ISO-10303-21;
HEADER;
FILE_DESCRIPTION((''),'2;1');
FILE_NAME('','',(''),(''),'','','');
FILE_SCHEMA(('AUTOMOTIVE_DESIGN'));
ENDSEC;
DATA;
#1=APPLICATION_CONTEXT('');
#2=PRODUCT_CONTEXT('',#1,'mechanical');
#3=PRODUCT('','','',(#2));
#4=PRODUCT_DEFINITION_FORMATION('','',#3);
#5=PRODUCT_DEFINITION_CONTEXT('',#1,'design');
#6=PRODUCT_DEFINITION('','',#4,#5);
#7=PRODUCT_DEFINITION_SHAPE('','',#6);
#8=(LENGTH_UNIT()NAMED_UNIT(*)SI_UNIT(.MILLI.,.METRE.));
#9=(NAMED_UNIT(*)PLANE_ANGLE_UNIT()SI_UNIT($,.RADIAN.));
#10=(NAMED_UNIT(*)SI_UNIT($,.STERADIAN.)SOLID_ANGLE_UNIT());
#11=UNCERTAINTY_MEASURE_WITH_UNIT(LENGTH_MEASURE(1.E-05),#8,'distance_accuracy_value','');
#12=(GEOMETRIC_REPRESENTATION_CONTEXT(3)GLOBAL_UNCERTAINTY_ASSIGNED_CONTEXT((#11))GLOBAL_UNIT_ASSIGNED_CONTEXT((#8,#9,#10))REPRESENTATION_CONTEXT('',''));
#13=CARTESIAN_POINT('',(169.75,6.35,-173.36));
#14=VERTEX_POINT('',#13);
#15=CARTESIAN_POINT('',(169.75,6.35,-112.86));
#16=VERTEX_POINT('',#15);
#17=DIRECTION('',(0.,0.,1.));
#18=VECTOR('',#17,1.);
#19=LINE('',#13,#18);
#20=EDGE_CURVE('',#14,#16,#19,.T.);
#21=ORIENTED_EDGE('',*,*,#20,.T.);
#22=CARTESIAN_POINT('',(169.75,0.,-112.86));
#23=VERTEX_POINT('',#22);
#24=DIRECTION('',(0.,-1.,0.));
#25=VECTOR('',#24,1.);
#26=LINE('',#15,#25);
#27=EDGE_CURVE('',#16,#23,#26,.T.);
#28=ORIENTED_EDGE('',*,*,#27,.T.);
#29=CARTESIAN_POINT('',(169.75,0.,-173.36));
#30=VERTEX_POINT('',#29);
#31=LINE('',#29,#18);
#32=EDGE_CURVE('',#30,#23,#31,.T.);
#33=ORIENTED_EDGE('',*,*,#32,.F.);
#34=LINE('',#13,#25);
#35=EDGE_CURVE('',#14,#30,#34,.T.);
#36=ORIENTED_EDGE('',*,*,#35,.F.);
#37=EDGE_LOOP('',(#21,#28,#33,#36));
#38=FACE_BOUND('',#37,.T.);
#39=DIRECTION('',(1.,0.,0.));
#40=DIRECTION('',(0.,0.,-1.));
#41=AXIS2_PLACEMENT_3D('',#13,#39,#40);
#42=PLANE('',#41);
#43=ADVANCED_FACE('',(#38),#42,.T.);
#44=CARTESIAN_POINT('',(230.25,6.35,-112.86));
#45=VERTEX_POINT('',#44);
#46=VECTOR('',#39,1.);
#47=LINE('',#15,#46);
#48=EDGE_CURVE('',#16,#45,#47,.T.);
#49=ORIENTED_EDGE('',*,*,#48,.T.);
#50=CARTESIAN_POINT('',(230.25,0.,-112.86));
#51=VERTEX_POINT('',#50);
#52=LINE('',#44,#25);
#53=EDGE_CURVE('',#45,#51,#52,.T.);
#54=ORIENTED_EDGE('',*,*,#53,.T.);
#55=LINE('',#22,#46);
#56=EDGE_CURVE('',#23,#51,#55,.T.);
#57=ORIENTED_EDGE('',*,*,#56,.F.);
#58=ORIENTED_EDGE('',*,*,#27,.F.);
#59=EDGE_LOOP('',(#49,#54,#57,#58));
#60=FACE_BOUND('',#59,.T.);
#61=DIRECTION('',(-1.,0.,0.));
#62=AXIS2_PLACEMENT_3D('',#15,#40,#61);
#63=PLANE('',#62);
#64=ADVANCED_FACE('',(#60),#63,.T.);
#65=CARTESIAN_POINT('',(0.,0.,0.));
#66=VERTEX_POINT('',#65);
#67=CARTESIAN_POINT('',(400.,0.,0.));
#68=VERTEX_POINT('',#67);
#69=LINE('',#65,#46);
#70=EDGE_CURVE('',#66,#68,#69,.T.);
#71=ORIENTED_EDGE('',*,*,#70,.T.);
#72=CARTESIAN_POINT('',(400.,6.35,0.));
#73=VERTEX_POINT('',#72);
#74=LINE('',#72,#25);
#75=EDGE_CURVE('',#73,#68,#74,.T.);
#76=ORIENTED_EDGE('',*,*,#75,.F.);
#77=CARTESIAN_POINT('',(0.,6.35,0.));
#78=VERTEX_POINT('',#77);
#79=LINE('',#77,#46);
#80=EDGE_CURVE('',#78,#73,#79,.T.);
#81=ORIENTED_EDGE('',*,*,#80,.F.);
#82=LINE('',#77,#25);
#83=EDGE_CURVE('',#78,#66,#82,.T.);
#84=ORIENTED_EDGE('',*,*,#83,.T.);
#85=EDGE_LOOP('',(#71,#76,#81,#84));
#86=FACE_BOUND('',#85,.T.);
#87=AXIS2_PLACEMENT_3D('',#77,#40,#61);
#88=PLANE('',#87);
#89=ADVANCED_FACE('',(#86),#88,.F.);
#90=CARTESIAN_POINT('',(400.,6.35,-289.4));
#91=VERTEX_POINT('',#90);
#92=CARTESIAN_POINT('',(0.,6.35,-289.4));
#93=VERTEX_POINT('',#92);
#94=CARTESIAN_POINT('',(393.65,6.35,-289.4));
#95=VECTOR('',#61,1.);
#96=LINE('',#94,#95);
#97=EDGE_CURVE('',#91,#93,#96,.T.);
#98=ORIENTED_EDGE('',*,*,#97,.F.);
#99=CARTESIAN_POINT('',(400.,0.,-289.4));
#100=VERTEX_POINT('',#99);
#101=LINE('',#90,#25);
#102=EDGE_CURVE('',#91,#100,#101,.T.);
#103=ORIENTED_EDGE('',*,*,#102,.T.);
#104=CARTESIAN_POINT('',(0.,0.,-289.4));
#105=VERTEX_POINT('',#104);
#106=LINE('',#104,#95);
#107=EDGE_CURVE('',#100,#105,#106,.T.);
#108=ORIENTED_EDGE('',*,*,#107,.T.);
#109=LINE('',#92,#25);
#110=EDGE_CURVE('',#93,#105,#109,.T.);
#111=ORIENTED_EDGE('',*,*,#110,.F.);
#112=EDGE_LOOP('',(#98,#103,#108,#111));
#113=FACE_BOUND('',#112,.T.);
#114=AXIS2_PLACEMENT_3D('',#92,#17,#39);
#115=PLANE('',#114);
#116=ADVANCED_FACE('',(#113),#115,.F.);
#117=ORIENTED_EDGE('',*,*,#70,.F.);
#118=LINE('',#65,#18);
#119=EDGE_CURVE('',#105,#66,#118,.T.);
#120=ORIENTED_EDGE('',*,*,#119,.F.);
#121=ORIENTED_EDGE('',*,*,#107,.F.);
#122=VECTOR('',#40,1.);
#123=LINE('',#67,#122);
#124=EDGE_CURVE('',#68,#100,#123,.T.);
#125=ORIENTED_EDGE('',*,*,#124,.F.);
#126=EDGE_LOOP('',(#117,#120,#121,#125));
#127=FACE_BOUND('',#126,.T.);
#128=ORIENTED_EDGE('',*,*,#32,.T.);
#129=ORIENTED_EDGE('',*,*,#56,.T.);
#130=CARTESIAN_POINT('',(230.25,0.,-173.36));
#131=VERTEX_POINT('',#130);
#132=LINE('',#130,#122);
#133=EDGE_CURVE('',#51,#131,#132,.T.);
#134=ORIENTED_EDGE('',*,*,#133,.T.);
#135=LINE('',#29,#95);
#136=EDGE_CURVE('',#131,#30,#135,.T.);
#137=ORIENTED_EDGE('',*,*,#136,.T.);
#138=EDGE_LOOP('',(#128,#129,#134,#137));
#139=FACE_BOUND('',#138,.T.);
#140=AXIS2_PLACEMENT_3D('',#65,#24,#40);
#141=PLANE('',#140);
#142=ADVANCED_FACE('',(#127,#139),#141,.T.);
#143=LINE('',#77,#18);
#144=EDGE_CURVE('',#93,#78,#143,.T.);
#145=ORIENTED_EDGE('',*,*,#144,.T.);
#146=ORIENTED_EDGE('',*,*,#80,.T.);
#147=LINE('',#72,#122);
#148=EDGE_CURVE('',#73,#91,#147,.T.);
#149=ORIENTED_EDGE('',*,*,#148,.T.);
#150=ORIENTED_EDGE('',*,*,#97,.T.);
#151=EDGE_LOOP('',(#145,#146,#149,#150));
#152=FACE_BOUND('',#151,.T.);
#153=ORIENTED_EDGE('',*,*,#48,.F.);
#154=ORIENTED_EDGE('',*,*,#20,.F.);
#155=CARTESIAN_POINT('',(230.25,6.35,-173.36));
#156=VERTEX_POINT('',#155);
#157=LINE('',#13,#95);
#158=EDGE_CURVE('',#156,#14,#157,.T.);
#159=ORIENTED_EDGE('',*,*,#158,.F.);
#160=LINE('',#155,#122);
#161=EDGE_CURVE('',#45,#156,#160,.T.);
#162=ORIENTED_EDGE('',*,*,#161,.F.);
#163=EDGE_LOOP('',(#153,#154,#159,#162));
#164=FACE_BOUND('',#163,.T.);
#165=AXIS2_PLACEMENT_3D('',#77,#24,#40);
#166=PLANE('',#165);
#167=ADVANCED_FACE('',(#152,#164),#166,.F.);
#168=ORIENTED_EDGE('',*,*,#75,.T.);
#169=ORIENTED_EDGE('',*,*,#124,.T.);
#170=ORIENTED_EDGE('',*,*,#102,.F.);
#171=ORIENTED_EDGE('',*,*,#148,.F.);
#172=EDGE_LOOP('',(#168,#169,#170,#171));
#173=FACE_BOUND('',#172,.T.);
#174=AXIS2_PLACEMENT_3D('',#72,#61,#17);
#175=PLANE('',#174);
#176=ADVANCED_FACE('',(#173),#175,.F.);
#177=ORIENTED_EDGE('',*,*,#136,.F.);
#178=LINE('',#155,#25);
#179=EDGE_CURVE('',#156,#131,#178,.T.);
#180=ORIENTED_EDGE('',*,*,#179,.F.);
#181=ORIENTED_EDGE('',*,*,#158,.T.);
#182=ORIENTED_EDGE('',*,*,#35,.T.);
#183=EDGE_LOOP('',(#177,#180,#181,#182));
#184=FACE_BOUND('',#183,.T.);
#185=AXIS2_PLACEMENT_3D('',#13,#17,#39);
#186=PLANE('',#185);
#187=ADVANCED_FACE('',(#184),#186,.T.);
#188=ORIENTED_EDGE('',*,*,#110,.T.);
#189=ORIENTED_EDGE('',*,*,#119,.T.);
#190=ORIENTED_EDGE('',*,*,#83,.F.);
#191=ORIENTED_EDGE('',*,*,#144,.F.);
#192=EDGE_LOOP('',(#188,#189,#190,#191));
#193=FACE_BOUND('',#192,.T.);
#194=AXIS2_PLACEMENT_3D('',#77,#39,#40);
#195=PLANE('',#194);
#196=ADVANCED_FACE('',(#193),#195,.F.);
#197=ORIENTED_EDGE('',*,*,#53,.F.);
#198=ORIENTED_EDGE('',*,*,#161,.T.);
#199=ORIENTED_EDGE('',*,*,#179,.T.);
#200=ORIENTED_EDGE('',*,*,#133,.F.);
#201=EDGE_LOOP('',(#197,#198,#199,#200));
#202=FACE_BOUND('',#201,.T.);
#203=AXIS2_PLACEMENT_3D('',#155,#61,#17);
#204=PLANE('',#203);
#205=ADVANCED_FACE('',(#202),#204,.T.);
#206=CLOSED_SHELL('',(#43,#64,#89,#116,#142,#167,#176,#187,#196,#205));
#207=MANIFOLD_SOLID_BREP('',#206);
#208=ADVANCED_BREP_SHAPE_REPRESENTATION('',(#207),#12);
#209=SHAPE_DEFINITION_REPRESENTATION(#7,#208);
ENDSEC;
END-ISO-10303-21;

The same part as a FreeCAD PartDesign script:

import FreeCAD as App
import Part
import Sketcher

V = App.Vector


def add_polygon(sketch, points):
    """Adds a closed chain of lines whose ends are joined by coincident constraints."""
    first, n = sketch.GeometryCount, len(points)
    for a, b in zip(points, points[1:] + points[:1]):
        sketch.addGeometry(Part.LineSegment(App.Vector(*a, 0), App.Vector(*b, 0)), False)
    for i in range(n):
        sketch.addConstraint(Sketcher.Constraint("Coincident", first + i, 2, first + (i + 1) % n, 1))

doc = App.newDocument("Part")
params = doc.addObject("Spreadsheet::Sheet", "Params")
for row, (alias, value) in enumerate([
    ("sketch1_width", "400 mm"),
    ("sketch1_width2", "60.5 mm"),
    ("sketch1_height", "289.4 mm"),
    ("pad1_length", "6.35 mm"),
], start=1):
    params.set(f"A{row}", alias)
    params.set(f"B{row}", "=" + value)
    params.setAlias(f"B{row}", alias)

body = doc.addObject("PartDesign::Body", "Body")

# Sketch on XZ plane
sketch1 = doc.addObject("Sketcher::SketchObject", "Sketch")
body.addObject(sketch1)
sketch1.AttachmentSupport = (doc.XZ_Plane, [""])
sketch1.MapMode = "FlatFace"
add_polygon(sketch1, [(400, -289), (0, -289), (0, 0), (400, 0)])  # lines 0-3
add_polygon(sketch1, [(170, -113), (170, -173), (230, -173), (230, -113)])  # lines 4-7
sketch1.addConstraint([
    Sketcher.Constraint("Horizontal", 0),
    Sketcher.Constraint("Vertical", 1),
    Sketcher.Constraint("Horizontal", 2),
    Sketcher.Constraint("Vertical", 3),
    Sketcher.Constraint("Vertical", 4),
    Sketcher.Constraint("Horizontal", 5),
    Sketcher.Constraint("Vertical", 6),
    Sketcher.Constraint("Horizontal", 7),
    Sketcher.Constraint("Coincident", 1, 2, -1, 1),
    Sketcher.Constraint("Equal", 7, 4),
    Sketcher.Constraint("DistanceX", 0, 2, 0, 1, 400.0),
    Sketcher.Constraint("DistanceX", 5, 1, 5, 2, 60.5),
    Sketcher.Constraint("DistanceY", 1, 1, 1, 2, 289.4),
    Sketcher.Constraint("DistanceX", -1, 1, 4, 2, 169.75),
    Sketcher.Constraint("DistanceY", 4, 2, -1, 1, 173.36),
])
sketch1.setExpression("Constraints[18]", "Params.sketch1_width")
sketch1.setExpression("Constraints[19]", "Params.sketch1_width2")
sketch1.setExpression("Constraints[20]", "Params.sketch1_height")
pad1 = doc.addObject("PartDesign::Pad", "Pad")
body.addObject(pad1)
pad1.Profile = sketch1
pad1.setExpression("Length", "Params.pad1_length")
pad1.Reversed = True

doc.recompute()
